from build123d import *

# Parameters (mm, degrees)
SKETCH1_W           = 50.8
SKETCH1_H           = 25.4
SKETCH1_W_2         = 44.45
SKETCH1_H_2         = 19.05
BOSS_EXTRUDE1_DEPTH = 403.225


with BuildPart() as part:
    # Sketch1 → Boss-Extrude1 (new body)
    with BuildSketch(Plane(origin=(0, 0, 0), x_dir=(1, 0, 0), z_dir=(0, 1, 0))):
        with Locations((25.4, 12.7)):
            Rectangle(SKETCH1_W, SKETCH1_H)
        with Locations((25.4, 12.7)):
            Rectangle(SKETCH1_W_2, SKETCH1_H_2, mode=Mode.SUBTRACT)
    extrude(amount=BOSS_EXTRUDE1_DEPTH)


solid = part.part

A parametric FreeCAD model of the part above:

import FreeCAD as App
import Part
import Sketcher

V = App.Vector
Q = App.Units.Quantity


def add_polygon(sketch, points):
    """Adds a closed chain of lines whose ends are joined by coincident constraints."""
    first, n = sketch.GeometryCount, len(points)
    for a, b in zip(points, points[1:] + points[:1]):
        sketch.addGeometry(Part.LineSegment(App.Vector(*a, 0), App.Vector(*b, 0)), False)
    for i in range(n):
        sketch.addConstraint(Sketcher.Constraint("Coincident", first + i, 2, first + (i + 1) % n, 1))

doc = App.newDocument("Part")
body = doc.addObject("PartDesign::Body", "Body")

# Sketch on XZ plane
sketch1 = doc.addObject("Sketcher::SketchObject", "Sketch")
body.addObject(sketch1)
sketch1.AttachmentSupport = (doc.XZ_Plane, [""])
sketch1.MapMode = "FlatFace"
add_polygon(sketch1, [(0, -25.4), (0, 0), (50.8, 0), (50.8, -25.4)])  # lines 0-3
add_polygon(sketch1, [(47.625, -3.175), (3.175, -3.175), (3.175, -22.225), (47.625, -22.225)])  # lines 4-7
sketch1.addConstraint([
    Sketcher.Constraint("Vertical", 0),
    Sketcher.Constraint("Horizontal", 1),
    Sketcher.Constraint("Vertical", 2),
    Sketcher.Constraint("Horizontal", 3),
    Sketcher.Constraint("Horizontal", 4),
    Sketcher.Constraint("Vertical", 5),
    Sketcher.Constraint("Horizontal", 6),
    Sketcher.Constraint("Vertical", 7),
    Sketcher.Constraint("Coincident", 0, 2, -1, 1),
    Sketcher.Constraint("DistanceX", 1, 1, 1, 2, Q("2 in")),
    Sketcher.Constraint("DistanceY", 0, 1, 0, 2, Q("1 in")),
    Sketcher.Constraint("DistanceX", 4, 2, 4, 1, Q("1.75 in")),
    Sketcher.Constraint("DistanceY", 5, 2, 5, 1, Q("0.75 in")),
    Sketcher.Constraint("DistanceX", -1, 1, 4, 2, Q("0.125 in")),
    Sketcher.Constraint("DistanceY", 4, 2, -1, 1, Q("0.125 in")),
])
pad1 = doc.addObject("PartDesign::Pad", "Pad")
body.addObject(pad1)
pad1.Profile = sketch1
pad1.Length = Q("15.875 in")
pad1.Reversed = True

doc.recompute()
